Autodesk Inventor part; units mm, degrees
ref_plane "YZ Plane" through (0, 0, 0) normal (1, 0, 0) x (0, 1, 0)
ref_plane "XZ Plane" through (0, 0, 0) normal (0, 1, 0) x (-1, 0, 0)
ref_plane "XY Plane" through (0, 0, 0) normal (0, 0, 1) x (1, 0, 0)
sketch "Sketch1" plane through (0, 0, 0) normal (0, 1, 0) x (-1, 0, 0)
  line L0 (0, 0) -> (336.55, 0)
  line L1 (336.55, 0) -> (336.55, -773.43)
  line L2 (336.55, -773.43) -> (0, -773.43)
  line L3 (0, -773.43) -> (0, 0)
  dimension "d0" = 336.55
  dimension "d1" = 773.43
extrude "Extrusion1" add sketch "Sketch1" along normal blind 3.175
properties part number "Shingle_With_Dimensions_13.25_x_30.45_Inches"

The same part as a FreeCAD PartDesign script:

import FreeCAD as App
import Part
import Sketcher
Q = App.Units.Quantity

doc = App.newDocument("Part")
params = doc.addObject("Spreadsheet::Sheet", "Params")
for row, (alias, value) in enumerate([
    ("sketch1_width", "13.25 in"),
    ("sketch1_height", "30.45 in"),
    ("pad1_length", "0.125 in"),
], start=1):
    params.set(f"A{row}", alias)
    params.set(f"B{row}", "=" + value)
    params.setAlias(f"B{row}", alias)

body = doc.addObject("PartDesign::Body", "Body")

# Sketch on XZ plane
sketch1 = body.newObject("Sketcher::SketchObject", "Sketch")
sketch1.AttachmentSupport = (doc.getObject("XZ_Plane"), [""])
sketch1.MapMode = "FlatFace"
sketch1.addGeometry([
    Part.LineSegment(App.Vector(-337, 0, 0), App.Vector(0, 0, 0)),
    Part.LineSegment(App.Vector(0, 0, 0), App.Vector(0, -773, 0)),
    Part.LineSegment(App.Vector(0, -773, 0), App.Vector(-337, -773, 0)),
    Part.LineSegment(App.Vector(-337, -773, 0), App.Vector(-337, 0, 0)),
], False)
sketch1.addConstraint([
    Sketcher.Constraint("Coincident", 0, 2, 1, 1),
    Sketcher.Constraint("Coincident", 1, 2, 2, 1),
    Sketcher.Constraint("Coincident", 2, 2, 3, 1),
    Sketcher.Constraint("Coincident", 3, 2, 0, 1),
    Sketcher.Constraint("Horizontal", 0),
    Sketcher.Constraint("Vertical", 1),
    Sketcher.Constraint("Horizontal", 2),
    Sketcher.Constraint("Vertical", 3),
    Sketcher.Constraint("Coincident", 0, 2, -1, 1),
    Sketcher.Constraint("DistanceX", 0, 1, 0, 2, Q("13.25 in")),
    Sketcher.Constraint("DistanceY", 1, 2, 1, 1, Q("30.45 in")),
])
sketch1.setExpression("Constraints[9]", "Params.sketch1_width")
sketch1.setExpression("Constraints[10]", "Params.sketch1_height")
pad1 = body.newObject("PartDesign::Pad", "Pad")
pad1.Profile = sketch1
pad1.setExpression("Length", "Params.pad1_length")
pad1.Reversed = True

doc.recompute()
